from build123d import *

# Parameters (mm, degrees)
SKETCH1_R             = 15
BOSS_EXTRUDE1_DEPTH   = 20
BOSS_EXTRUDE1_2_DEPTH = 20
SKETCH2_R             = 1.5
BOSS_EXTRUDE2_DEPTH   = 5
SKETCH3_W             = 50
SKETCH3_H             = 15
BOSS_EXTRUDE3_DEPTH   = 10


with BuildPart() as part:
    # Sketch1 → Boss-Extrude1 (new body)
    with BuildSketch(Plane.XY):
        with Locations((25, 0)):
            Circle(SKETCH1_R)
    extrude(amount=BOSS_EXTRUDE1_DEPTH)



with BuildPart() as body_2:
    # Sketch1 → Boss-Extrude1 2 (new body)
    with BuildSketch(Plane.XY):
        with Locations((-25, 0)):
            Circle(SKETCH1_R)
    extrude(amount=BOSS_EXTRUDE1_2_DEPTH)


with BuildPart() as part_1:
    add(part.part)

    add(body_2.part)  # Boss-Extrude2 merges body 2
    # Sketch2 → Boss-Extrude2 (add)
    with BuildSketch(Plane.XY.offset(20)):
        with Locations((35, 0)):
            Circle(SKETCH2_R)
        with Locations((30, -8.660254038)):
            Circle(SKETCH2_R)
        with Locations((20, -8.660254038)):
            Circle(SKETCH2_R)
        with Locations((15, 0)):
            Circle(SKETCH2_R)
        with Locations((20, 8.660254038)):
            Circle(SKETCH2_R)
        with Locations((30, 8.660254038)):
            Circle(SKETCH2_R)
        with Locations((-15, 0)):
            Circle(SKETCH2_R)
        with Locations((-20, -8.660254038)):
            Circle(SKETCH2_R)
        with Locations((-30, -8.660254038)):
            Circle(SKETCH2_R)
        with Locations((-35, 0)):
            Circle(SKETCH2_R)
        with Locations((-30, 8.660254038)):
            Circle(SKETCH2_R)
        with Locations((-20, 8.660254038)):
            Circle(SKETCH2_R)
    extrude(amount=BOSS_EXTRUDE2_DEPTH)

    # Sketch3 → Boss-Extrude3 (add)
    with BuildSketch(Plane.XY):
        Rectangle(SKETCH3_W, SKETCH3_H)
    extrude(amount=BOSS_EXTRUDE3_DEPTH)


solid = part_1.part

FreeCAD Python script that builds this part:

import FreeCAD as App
import Part
import Sketcher
Q = App.Units.Quantity


def add_polygon(sketch, points):
    """Adds a closed chain of lines whose ends are joined by coincident constraints."""
    first, n = sketch.GeometryCount, len(points)
    for a, b in zip(points, points[1:] + points[:1]):
        sketch.addGeometry(Part.LineSegment(App.Vector(*a, 0), App.Vector(*b, 0)), False)
    for i in range(n):
        sketch.addConstraint(Sketcher.Constraint("Coincident", first + i, 2, first + (i + 1) % n, 1))

doc = App.newDocument("Part")
body = doc.addObject("PartDesign::Body", "Body")

sketch1 = body.newObject("Sketcher::SketchObject", "Sketch")
sketch1.AttachmentSupport = (doc.getObject("XY_Plane"), [""])
sketch1.MapMode = "FlatFace"
sketch1.addGeometry(Part.Circle(App.Vector(25, 0, 0), App.Vector(0, 0, 1), 15), False)
sketch1.addConstraint([
    Sketcher.Constraint("PointOnObject", 0, 3, -1),
    Sketcher.Constraint("Diameter", 0, Q("30 mm")),
    Sketcher.Constraint("DistanceX", -1, 1, 0, 3, Q("25 mm")),
])
pad1 = body.newObject("PartDesign::Pad", "Pad")
pad1.Profile = sketch1
pad1.Length = 20
body2 = doc.addObject("PartDesign::Body", "Body001")

sketch2 = body2.newObject("Sketcher::SketchObject", "Sketch001")
sketch2.AttachmentSupport = (doc.getObject("XY_Plane001"), [""])
sketch2.MapMode = "FlatFace"
sketch2.addGeometry(Part.Circle(App.Vector(-25, 0, 0), App.Vector(0, 0, 1), 15), False)
sketch2.addConstraint([
    Sketcher.Constraint("PointOnObject", 0, 3, -1),
    Sketcher.Constraint("Diameter", 0, Q("30 mm")),
    Sketcher.Constraint("DistanceX", 0, 3, -1, 1, Q("25 mm")),
])
pad2 = body2.newObject("PartDesign::Pad", "Pad001")
pad2.Profile = sketch2
pad2.Length = 20
body.AllowCompound = True
doc.recompute()

boolean = body.newObject("PartDesign::Boolean", "Boolean")
boolean.Type = "Fuse"
boolean.addObjects([body2])

sketch3 = body.newObject("Sketcher::SketchObject", "Sketch002")
sketch3.AttachmentSupport = (doc.getObject("XY_Plane"), [""])
sketch3.MapMode = "FlatFace"
sketch3.AttachmentOffset = App.Placement(App.Vector(0, 0, 20), App.Rotation())
sketch3.addGeometry([
    Part.Circle(App.Vector(35, 0, 0), App.Vector(0, 0, 1), 1.5),
    Part.Circle(App.Vector(30, -8.660254, 0), App.Vector(0, 0, 1), 1.5),
    Part.Circle(App.Vector(20, -8.660254, 0), App.Vector(0, 0, 1), 1.5),
    Part.Circle(App.Vector(15, 0, 0), App.Vector(0, 0, 1), 1.5),
    Part.Circle(App.Vector(20, 8.660254, 0), App.Vector(0, 0, 1), 1.5),
    Part.Circle(App.Vector(30, 8.660254, 0), App.Vector(0, 0, 1), 1.5),
    Part.Circle(App.Vector(-15, 0, 0), App.Vector(0, 0, 1), 1.5),
    Part.Circle(App.Vector(-20, -8.660254, 0), App.Vector(0, 0, 1), 1.5),
    Part.Circle(App.Vector(-30, -8.660254, 0), App.Vector(0, 0, 1), 1.5),
    Part.Circle(App.Vector(-35, 0, 0), App.Vector(0, 0, 1), 1.5),
    Part.Circle(App.Vector(-30, 8.660254, 0), App.Vector(0, 0, 1), 1.5),
    Part.Circle(App.Vector(-20, 8.660254, 0), App.Vector(0, 0, 1), 1.5),
], False)
sketch3.addConstraint([
    Sketcher.Constraint("Equal", 0, 1),
    Sketcher.Constraint("Equal", 1, 2),
    Sketcher.Constraint("Equal", 2, 3),
    Sketcher.Constraint("Equal", 3, 4),
    Sketcher.Constraint("Equal", 4, 5),
    Sketcher.Constraint("Equal", 5, 6),
    Sketcher.Constraint("Equal", 6, 7),
    Sketcher.Constraint("Equal", 7, 8),
    Sketcher.Constraint("Equal", 8, 9),
    Sketcher.Constraint("Equal", 9, 10),
    Sketcher.Constraint("Equal", 10, 11),
    Sketcher.Constraint("Symmetric", 3, 3, 6, 3, -1, 1),
    Sketcher.Constraint("Symmetric", 4, 3, 7, 3, -1, 1),
    Sketcher.Constraint("Symmetric", 5, 3, 8, 3, -1, 1),
    Sketcher.Constraint("Symmetric", 0, 3, 9, 3, -1, 1),
    Sketcher.Constraint("Symmetric", 1, 3, 10, 3, -1, 1),
    Sketcher.Constraint("Symmetric", 2, 3, 11, 3, -1, 1),
    Sketcher.Constraint("Symmetric", 2, 3, 7, 3, -2),
    Sketcher.Constraint("Symmetric", 1, 3, 8, 3, -2),
    Sketcher.Constraint("PointOnObject", 0, 3, -1),
    Sketcher.Constraint("PointOnObject", 3, 3, -1),
    Sketcher.Constraint("Horizontal", 1, 3, 2, 3),
    Sketcher.Constraint("Diameter", 0, Q("3 mm")),
    Sketcher.Constraint("DistanceX", -1, 1, 0, 3, Q("35 mm")),
    Sketcher.Constraint("DistanceX", -1, 1, 1, 3, Q("30 mm")),
    Sketcher.Constraint("DistanceX", -1, 1, 2, 3, Q("20 mm")),
    Sketcher.Constraint("DistanceX", -1, 1, 3, 3, Q("15 mm")),
    Sketcher.Constraint("DistanceY", 2, 3, 4, 3, Q("17.320508 mm")),
])
pad3 = body.newObject("PartDesign::Pad", "Pad002")
pad3.Profile = sketch3
pad3.Length = 5

sketch4 = body.newObject("Sketcher::SketchObject", "Sketch003")
sketch4.AttachmentSupport = (doc.getObject("XY_Plane"), [""])
sketch4.MapMode = "FlatFace"
add_polygon(sketch4, [(-25, 7.5), (-25, -7.5), (25, -7.5), (25, 7.5)])
sketch4.addConstraint([
    Sketcher.Constraint("Vertical", 0),
    Sketcher.Constraint("Horizontal", 1),
    Sketcher.Constraint("Vertical", 2),
    Sketcher.Constraint("Horizontal", 3),
    Sketcher.Constraint("Symmetric", 0, 2, 2, 2, -1, 1),
    Sketcher.Constraint("DistanceX", 1, 1, 1, 2, Q("50 mm")),
    Sketcher.Constraint("DistanceY", 0, 2, 0, 1, Q("15 mm")),
])
pad4 = body.newObject("PartDesign::Pad", "Pad003")
pad4.Profile = sketch4
pad4.Length = 10

doc.recompute()
